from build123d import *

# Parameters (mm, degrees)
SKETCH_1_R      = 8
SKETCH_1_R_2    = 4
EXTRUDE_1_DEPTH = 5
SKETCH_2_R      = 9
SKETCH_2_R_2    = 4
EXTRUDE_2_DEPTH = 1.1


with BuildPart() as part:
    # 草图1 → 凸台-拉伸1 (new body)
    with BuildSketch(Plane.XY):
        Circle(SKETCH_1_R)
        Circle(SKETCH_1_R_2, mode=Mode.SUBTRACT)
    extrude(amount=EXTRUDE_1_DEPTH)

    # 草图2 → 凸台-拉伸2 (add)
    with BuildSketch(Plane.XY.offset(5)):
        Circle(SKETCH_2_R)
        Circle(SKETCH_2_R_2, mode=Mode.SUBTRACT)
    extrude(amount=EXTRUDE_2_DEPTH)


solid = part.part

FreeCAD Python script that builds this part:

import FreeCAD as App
import Part
import Sketcher

V = App.Vector

doc = App.newDocument("Part")
body = doc.addObject("PartDesign::Body", "Body")

sketch1 = body.newObject("Sketcher::SketchObject", "Sketch")
sketch1.AttachmentSupport = (doc.getObject("XY_Plane"), [""])
sketch1.MapMode = "FlatFace"
sketch1.addGeometry(Part.Circle(V(0, 0, 0), V(0, 0, 1), 8), False)
sketch1.addGeometry(Part.Circle(V(0, 0, 0), V(0, 0, 1), 4), False)
sketch1.addConstraint(Sketcher.Constraint("Coincident", 0, 3, -1, 1))
sketch1.addConstraint(Sketcher.Constraint("Coincident", 1, 3, -1, 1))
sketch1.addConstraint(Sketcher.Constraint("Diameter", 0, 16.0))
sketch1.addConstraint(Sketcher.Constraint("Diameter", 1, 8.0))
pad1 = body.newObject("PartDesign::Pad", "Pad")
pad1.Profile = sketch1
pad1.Length = 5

sketch2 = body.newObject("Sketcher::SketchObject", "Sketch001")
sketch2.AttachmentSupport = (doc.getObject("XY_Plane"), [""])
sketch2.MapMode = "FlatFace"
sketch2.AttachmentOffset = App.Placement(V(0, 0, 5), App.Rotation())
sketch2.addGeometry(Part.Circle(V(0, 0, 0), V(0, 0, 1), 9), False)
sketch2.addGeometry(Part.Circle(V(0, 0, 0), V(0, 0, 1), 4), False)
sketch2.addConstraint(Sketcher.Constraint("Coincident", 0, 3, -1, 1))
sketch2.addConstraint(Sketcher.Constraint("Coincident", 1, 3, -1, 1))
sketch2.addConstraint(Sketcher.Constraint("Diameter", 0, 18.0))
sketch2.addConstraint(Sketcher.Constraint("Diameter", 1, 8.0))
pad2 = body.newObject("PartDesign::Pad", "Pad001")
pad2.Profile = sketch2
pad2.Length = 1.1

doc.recompute()
